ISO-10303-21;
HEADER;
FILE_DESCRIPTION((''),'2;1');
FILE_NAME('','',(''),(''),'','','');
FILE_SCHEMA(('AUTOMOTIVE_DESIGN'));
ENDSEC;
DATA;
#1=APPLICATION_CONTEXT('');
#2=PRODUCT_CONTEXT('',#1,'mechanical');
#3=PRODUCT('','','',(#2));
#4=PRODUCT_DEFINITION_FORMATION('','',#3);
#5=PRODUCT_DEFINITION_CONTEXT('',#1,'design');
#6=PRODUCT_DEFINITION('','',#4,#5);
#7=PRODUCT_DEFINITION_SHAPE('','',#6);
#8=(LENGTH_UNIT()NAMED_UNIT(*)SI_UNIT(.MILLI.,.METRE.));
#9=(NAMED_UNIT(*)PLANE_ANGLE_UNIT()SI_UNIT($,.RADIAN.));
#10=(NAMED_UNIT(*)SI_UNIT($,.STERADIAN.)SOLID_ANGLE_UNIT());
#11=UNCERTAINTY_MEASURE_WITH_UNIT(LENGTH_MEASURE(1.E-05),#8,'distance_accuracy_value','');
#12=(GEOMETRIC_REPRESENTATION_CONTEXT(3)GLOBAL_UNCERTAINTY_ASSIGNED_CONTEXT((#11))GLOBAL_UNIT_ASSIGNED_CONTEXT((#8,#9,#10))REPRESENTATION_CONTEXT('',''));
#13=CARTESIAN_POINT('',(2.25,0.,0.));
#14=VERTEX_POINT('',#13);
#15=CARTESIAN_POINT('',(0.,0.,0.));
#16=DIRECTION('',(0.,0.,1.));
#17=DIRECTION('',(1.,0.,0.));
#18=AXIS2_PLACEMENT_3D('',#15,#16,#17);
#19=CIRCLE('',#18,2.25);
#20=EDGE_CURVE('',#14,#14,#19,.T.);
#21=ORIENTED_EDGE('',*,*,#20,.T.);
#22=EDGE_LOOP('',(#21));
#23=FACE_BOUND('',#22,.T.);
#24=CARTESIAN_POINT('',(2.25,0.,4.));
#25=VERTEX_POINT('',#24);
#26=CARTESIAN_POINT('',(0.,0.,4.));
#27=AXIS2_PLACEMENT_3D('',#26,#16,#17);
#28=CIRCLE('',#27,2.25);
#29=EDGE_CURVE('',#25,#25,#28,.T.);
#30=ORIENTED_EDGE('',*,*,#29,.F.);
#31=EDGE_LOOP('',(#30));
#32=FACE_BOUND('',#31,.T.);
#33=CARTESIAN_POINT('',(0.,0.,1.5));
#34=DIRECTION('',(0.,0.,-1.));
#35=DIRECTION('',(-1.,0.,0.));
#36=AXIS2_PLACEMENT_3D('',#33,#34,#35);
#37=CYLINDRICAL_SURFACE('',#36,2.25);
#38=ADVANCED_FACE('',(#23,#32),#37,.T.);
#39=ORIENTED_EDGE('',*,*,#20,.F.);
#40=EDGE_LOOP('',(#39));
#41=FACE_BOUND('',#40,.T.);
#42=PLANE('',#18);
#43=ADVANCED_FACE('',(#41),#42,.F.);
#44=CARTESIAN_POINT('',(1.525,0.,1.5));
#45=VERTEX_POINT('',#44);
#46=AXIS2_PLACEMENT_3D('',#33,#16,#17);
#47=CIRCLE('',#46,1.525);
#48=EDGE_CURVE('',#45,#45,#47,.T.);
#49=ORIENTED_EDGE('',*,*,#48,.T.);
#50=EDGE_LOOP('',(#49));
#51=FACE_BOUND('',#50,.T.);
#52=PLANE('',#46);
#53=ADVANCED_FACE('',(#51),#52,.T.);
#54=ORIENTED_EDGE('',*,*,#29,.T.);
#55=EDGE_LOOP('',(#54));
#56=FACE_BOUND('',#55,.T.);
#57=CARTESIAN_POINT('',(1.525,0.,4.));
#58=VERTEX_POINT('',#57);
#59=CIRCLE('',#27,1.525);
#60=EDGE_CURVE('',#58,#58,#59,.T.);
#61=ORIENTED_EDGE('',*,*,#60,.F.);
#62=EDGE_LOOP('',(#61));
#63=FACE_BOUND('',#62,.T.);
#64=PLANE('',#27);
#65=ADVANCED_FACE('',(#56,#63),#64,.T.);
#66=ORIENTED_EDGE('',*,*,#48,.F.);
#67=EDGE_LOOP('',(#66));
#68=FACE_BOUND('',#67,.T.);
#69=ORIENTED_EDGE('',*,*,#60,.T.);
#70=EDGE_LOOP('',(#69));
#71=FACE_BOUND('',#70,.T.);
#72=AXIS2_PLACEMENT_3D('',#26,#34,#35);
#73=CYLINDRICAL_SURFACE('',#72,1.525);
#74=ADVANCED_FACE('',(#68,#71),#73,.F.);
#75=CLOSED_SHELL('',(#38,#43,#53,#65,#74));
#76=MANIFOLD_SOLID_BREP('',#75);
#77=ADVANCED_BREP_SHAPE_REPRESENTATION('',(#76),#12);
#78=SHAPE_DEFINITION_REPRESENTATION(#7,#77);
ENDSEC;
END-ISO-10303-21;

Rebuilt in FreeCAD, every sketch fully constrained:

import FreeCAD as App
import Part
import Sketcher
Q = App.Units.Quantity

doc = App.newDocument("Part")
body = doc.addObject("PartDesign::Body", "Body")

# Sketch on XY plane
sketch1 = body.newObject("Sketcher::SketchObject", "Sketch")
sketch1.AttachmentSupport = (doc.getObject("XY_Plane"), [""])
sketch1.MapMode = "FlatFace"
sketch1.addGeometry(Part.Circle(App.Vector(0, 0, 0), App.Vector(0, 0, 1), 2.2), False)
sketch1.addConstraint([
    Sketcher.Constraint("Coincident", 0, 3, -1, 1),
    Sketcher.Constraint("Diameter", 0, Q("4.5 mm")),
])
pad1 = body.newObject("PartDesign::Pad", "Pad")
pad1.Profile = sketch1
pad1.Length = 1.5

# Sketch on XY plane
sketch2 = body.newObject("Sketcher::SketchObject", "Sketch001")
sketch2.AttachmentSupport = (doc.getObject("XY_Plane"), [""])
sketch2.MapMode = "FlatFace"
sketch2.AttachmentOffset = App.Placement(App.Vector(0, 0, 1.5), App.Rotation())
sketch2.addGeometry(Part.Circle(App.Vector(0, 0, 0), App.Vector(0, 0, 1), 2.2), False)
sketch2.addConstraint([
    Sketcher.Constraint("Coincident", 0, 3, -1, 1),
    Sketcher.Constraint("Diameter", 0, Q("4.5 mm")),
])
pad2 = body.newObject("PartDesign::Pad", "Pad001")
pad2.Profile = sketch2
pad2.Length = 2.5

# Sketch on XY plane
sketch3 = body.newObject("Sketcher::SketchObject", "Sketch002")
sketch3.AttachmentSupport = (doc.getObject("XY_Plane"), [""])
sketch3.MapMode = "FlatFace"
sketch3.AttachmentOffset = App.Placement(App.Vector(0, 0, 1.5), App.Rotation())
sketch3.addGeometry(Part.Circle(App.Vector(0, 0, 0), App.Vector(0, 0, 1), 1.5), False)
sketch3.addConstraint([
    Sketcher.Constraint("Coincident", 0, 3, -1, 1),
    Sketcher.Constraint("Diameter", 0, Q("3.05 mm")),
])
pocket1 = body.newObject("PartDesign::Pocket", "Pocket")
pocket1.Profile = sketch3
pocket1.Type = "ThroughAll"
pocket1.Reversed = True

doc.recompute()
